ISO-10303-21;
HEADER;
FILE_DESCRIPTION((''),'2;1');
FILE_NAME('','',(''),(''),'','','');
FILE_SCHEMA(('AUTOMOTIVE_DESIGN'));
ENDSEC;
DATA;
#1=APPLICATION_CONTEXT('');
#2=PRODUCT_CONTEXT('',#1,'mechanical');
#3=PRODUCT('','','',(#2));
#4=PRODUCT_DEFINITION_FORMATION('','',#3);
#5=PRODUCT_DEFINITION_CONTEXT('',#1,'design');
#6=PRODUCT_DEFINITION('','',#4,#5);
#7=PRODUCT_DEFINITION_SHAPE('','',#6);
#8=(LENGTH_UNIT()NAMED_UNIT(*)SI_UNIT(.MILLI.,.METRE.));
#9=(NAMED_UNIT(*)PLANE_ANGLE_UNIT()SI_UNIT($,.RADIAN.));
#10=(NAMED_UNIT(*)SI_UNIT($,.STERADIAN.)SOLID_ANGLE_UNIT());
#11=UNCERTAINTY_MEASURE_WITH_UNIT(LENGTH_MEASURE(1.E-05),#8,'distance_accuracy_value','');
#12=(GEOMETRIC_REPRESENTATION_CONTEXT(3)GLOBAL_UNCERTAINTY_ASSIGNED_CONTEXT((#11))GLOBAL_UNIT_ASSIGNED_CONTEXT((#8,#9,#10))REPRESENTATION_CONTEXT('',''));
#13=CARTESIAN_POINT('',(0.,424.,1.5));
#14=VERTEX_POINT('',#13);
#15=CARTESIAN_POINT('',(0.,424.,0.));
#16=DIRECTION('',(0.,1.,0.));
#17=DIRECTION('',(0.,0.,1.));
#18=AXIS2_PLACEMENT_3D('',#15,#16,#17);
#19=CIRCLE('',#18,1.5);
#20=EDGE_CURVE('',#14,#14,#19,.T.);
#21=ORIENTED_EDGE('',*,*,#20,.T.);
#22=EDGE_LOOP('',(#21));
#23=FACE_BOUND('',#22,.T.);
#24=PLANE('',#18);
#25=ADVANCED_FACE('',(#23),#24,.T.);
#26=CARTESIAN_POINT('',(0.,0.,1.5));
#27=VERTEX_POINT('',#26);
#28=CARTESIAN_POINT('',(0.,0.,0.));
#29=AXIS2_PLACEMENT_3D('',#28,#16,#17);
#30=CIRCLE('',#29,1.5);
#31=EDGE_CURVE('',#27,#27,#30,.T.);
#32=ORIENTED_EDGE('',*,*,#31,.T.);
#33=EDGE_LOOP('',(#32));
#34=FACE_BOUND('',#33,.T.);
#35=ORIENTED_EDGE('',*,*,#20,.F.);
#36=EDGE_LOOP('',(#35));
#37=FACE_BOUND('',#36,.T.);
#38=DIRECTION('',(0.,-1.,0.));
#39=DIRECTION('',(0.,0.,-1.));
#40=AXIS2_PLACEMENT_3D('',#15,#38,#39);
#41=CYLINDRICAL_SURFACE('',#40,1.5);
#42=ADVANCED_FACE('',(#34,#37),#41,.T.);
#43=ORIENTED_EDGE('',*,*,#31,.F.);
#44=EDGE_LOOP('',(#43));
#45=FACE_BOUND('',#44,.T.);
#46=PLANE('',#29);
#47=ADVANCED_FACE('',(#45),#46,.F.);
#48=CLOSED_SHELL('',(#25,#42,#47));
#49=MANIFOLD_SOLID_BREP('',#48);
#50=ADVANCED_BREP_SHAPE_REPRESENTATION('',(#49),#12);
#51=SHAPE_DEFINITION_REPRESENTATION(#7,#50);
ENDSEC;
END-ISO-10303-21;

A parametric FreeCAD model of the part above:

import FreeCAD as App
import Part
import Sketcher

doc = App.newDocument("Part")
params = doc.addObject("Spreadsheet::Sheet", "Params")
for row, (alias, value) in enumerate([
    ("sketch1_diameter", "3 mm"),
    ("pad1_length", "424 mm"),
], start=1):
    params.set(f"A{row}", alias)
    params.set(f"B{row}", "=" + value)
    params.setAlias(f"B{row}", alias)

body = doc.addObject("PartDesign::Body", "Body")

sketch1 = doc.addObject("Sketcher::SketchObject", "Sketch")
body.addObject(sketch1)
sketch1.AttachmentSupport = (doc.XZ_Plane, [""])
sketch1.MapMode = "FlatFace"
sketch1.addGeometry(Part.Circle(App.Vector(0, 0, 0), App.Vector(0, 0, 1), 1.5), False)
sketch1.addConstraint(Sketcher.Constraint("Coincident", 0, 3, -1, 1))
sketch1.addConstraint(Sketcher.Constraint("Diameter", 0, 3.0))
sketch1.setExpression("Constraints[1]", "Params.sketch1_diameter")
pad1 = doc.addObject("PartDesign::Pad", "Pad")
body.addObject(pad1)
pad1.Profile = sketch1
pad1.setExpression("Length", "Params.pad1_length")
pad1.Reversed = True

doc.recompute()
